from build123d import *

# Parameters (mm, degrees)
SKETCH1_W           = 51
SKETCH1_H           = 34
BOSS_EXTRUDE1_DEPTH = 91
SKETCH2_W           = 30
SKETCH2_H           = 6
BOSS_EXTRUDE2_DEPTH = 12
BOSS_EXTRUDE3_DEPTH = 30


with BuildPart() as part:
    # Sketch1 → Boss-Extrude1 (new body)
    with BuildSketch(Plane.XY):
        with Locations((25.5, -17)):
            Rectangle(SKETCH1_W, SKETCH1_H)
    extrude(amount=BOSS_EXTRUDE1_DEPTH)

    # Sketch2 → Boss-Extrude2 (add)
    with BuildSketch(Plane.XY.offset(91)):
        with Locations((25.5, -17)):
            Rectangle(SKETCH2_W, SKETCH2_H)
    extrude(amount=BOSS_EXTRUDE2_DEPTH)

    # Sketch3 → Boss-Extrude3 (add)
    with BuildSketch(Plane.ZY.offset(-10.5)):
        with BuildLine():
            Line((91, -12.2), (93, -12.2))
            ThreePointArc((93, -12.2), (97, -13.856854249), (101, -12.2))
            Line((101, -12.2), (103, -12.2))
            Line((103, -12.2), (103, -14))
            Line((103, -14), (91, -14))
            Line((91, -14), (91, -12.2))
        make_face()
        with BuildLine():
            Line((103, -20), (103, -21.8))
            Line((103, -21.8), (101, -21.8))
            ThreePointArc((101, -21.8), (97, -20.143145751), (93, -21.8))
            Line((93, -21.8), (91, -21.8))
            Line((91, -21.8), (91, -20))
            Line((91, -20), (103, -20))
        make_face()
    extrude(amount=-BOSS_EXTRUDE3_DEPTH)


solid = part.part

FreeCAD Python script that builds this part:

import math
import FreeCAD as App
import Part
import Sketcher
Q = App.Units.Quantity


def add_polygon(sketch, points):
    """Adds a closed chain of lines whose ends are joined by coincident constraints."""
    first, n = sketch.GeometryCount, len(points)
    for a, b in zip(points, points[1:] + points[:1]):
        sketch.addGeometry(Part.LineSegment(App.Vector(*a, 0), App.Vector(*b, 0)), False)
    for i in range(n):
        sketch.addConstraint(Sketcher.Constraint("Coincident", first + i, 2, first + (i + 1) % n, 1))

doc = App.newDocument("Part")
body = doc.addObject("PartDesign::Body", "Body")

sketch1 = doc.addObject("Sketcher::SketchObject", "Sketch")
body.addObject(sketch1)
sketch1.AttachmentSupport = (doc.XY_Plane, [""])
sketch1.MapMode = "FlatFace"
add_polygon(sketch1, [(0, 0), (0, -34), (51, -34), (51, 0)])
sketch1.addConstraint([
    Sketcher.Constraint("Vertical", 0),
    Sketcher.Constraint("Horizontal", 1),
    Sketcher.Constraint("Vertical", 2),
    Sketcher.Constraint("Horizontal", 3),
    Sketcher.Constraint("Coincident", 3, 2, -1, 1),
    Sketcher.Constraint("DistanceX", 1, 1, 1, 2, Q("51 mm")),
    Sketcher.Constraint("DistanceY", 0, 2, 0, 1, Q("34 mm")),
])
pad1 = doc.addObject("PartDesign::Pad", "Pad")
body.addObject(pad1)
pad1.Profile = sketch1
pad1.Length = 91

sketch2 = doc.addObject("Sketcher::SketchObject", "Sketch001")
body.addObject(sketch2)
sketch2.AttachmentSupport = (doc.XY_Plane, [""])
sketch2.MapMode = "FlatFace"
sketch2.AttachmentOffset = App.Placement(App.Vector(0, 0, 91), App.Rotation())
add_polygon(sketch2, [(10, -14), (10, -20), (40, -20), (40, -14)])
sketch2.addConstraint([
    Sketcher.Constraint("Vertical", 0),
    Sketcher.Constraint("Horizontal", 1),
    Sketcher.Constraint("Vertical", 2),
    Sketcher.Constraint("Horizontal", 3),
    Sketcher.Constraint("DistanceX", 1, 1, 1, 2, Q("30 mm")),
    Sketcher.Constraint("DistanceY", 0, 2, 0, 1, Q("6 mm")),
    Sketcher.Constraint("DistanceY", 0, 2, -1, 1, Q("20 mm")),
    Sketcher.Constraint("DistanceX", -1, 1, 0, 2, Q("10.5 mm")),
])
pad2 = doc.addObject("PartDesign::Pad", "Pad001")
body.addObject(pad2)
pad2.Profile = sketch2
pad2.Length = 12

sketch3 = doc.addObject("Sketcher::SketchObject", "Sketch002")
body.addObject(sketch3)
sketch3.AttachmentSupport = (doc.YZ_Plane, [""])
sketch3.MapMode = "FlatFace"
sketch3.AttachmentOffset = App.Placement(App.Vector(0, 0, 10.5), App.Rotation())
sketch3.addGeometry([
    Part.LineSegment(App.Vector(-12.2, 93, 0), App.Vector(-12.2, 91, 0)),
    Part.LineSegment(App.Vector(-12.2, 91, 0), App.Vector(-14, 91, 0)),
    Part.LineSegment(App.Vector(-14, 91, 0), App.Vector(-14, 103, 0)),
    Part.LineSegment(App.Vector(-14, 103, 0), App.Vector(-12.2, 103, 0)),
    Part.LineSegment(App.Vector(-12.2, 103, 0), App.Vector(-12.2, 101, 0)),
    Part.ArcOfCircle(Part.Circle(App.Vector(-8.2, 97, 0), App.Vector(0, 0, 1), 5.7), math.radians(135), math.radians(225)),
    Part.LineSegment(App.Vector(-21.8, 103, 0), App.Vector(-20, 103, 0)),
    Part.LineSegment(App.Vector(-20, 103, 0), App.Vector(-20, 91, 0)),
    Part.LineSegment(App.Vector(-20, 91, 0), App.Vector(-21.8, 91, 0)),
    Part.LineSegment(App.Vector(-21.8, 91, 0), App.Vector(-21.8, 93, 0)),
    Part.ArcOfCircle(Part.Circle(App.Vector(-25.8, 97, 0), App.Vector(0, 0, 1), 5.7), math.radians(-45), math.radians(45)),
    Part.LineSegment(App.Vector(-21.8, 101, 0), App.Vector(-21.8, 103, 0)),
], False)
sketch3.addConstraint([
    Sketcher.Constraint("Coincident", 0, 2, 1, 1),
    Sketcher.Constraint("Coincident", 1, 2, 2, 1),
    Sketcher.Constraint("Coincident", 2, 2, 3, 1),
    Sketcher.Constraint("Coincident", 3, 2, 4, 1),
    Sketcher.Constraint("Coincident", 4, 2, 5, 1),
    Sketcher.Constraint("Coincident", 5, 2, 0, 1),
    Sketcher.Constraint("Coincident", 6, 2, 7, 1),
    Sketcher.Constraint("Coincident", 7, 2, 8, 1),
    Sketcher.Constraint("Coincident", 8, 2, 9, 1),
    Sketcher.Constraint("Coincident", 9, 2, 10, 1),
    Sketcher.Constraint("Coincident", 10, 2, 11, 1),
    Sketcher.Constraint("Coincident", 11, 2, 6, 1),
    Sketcher.Constraint("Vertical", 0),
    Sketcher.Constraint("Horizontal", 1),
    Sketcher.Constraint("Vertical", 2),
    Sketcher.Constraint("Horizontal", 3),
    Sketcher.Constraint("Vertical", 4),
    Sketcher.Constraint("Horizontal", 6),
    Sketcher.Constraint("Vertical", 7),
    Sketcher.Constraint("Horizontal", 8),
    Sketcher.Constraint("Vertical", 9),
    Sketcher.Constraint("Vertical", 11),
    Sketcher.Constraint("Equal", 5, 10),
    Sketcher.Constraint("Horizontal", 5, 3, 10, 3),
    Sketcher.Constraint("Horizontal", 3, 2, 6, 2),
    Sketcher.Constraint("Horizontal", 1, 2, 7, 2),
    Sketcher.Constraint("Horizontal", 5, 2, 9, 2),
    Sketcher.Constraint("Horizontal", 4, 2, 10, 2),
    Sketcher.Constraint("Vertical", 0, 2, 3, 2),
    Sketcher.Constraint("Equal", 3, 6),
    Sketcher.Constraint("Equal", 0, 4),
    Sketcher.Constraint("DistanceY", 0, 2, 0, 1, Q("2 mm")),
    Sketcher.Constraint("DistanceY", 2, 1, 2, 2, Q("12 mm")),
    Sketcher.Constraint("DistanceX", 1, 2, 1, 1, Q("1.8 mm")),
    Sketcher.Constraint("DistanceY", -1, 1, 5, 3, Q("97 mm")),
    Sketcher.Constraint("DistanceX", 1, 2, -1, 1, Q("14 mm")),
    Sketcher.Constraint("DistanceX", 6, 2, -1, 1, Q("20 mm")),
    Sketcher.Constraint("DistanceX", 0, 2, 5, 3, Q("4 mm")),
])
pad3 = doc.addObject("PartDesign::Pad", "Pad002")
body.addObject(pad3)
pad3.Profile = sketch3
pad3.Length = 30

doc.recompute()
